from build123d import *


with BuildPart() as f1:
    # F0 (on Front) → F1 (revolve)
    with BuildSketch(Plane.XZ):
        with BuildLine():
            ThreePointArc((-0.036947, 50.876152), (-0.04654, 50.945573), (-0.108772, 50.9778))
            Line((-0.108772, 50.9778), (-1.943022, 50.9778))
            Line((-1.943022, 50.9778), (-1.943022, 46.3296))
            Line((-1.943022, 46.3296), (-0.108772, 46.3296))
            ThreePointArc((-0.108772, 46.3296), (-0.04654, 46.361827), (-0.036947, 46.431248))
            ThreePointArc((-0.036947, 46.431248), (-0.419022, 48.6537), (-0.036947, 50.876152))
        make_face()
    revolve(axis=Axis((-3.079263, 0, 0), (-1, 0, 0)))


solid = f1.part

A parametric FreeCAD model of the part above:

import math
import FreeCAD as App
import Part
import Sketcher
Q = App.Units.Quantity

doc = App.newDocument("Part")
body = doc.addObject("PartDesign::Body", "Body")

sketch1 = body.newObject("Sketcher::SketchObject", "Sketch")
sketch1.AttachmentSupport = (doc.getObject("XZ_Plane"), [""])
sketch1.MapMode = "FlatFace"
sketch1.addGeometry([
    Part.ArcOfCircle(Part.Circle(App.Vector(-0.11, 50.9, 0), App.Vector(0, 0, 1), 0.08), math.radians(-20), math.radians(90)),
    Part.LineSegment(App.Vector(-0.11, 50.98, 0), App.Vector(-1.94, 50.98, 0)),
    Part.LineSegment(App.Vector(-1.94, 50.98, 0), App.Vector(-1.94, 46.33, 0)),
    Part.LineSegment(App.Vector(-1.94, 46.33, 0), App.Vector(-0.11, 46.33, 0)),
    Part.ArcOfCircle(Part.Circle(App.Vector(-0.11, 46.41, 0), App.Vector(0, 0, 1), 0.08), math.radians(-90), math.radians(20)),
    Part.ArcOfCircle(Part.Circle(App.Vector(6.24, 48.65, 0), App.Vector(0, 0, 1), 6.65), math.radians(160), math.radians(200)),
], False)
sketch1.addConstraint([
    Sketcher.Constraint("Tangent", 0, 2, 1, 1),
    Sketcher.Constraint("Coincident", 1, 2, 2, 1),
    Sketcher.Constraint("Coincident", 2, 2, 3, 1),
    Sketcher.Constraint("Tangent", 3, 2, 4, 1),
    Sketcher.Constraint("Coincident", 4, 2, 5, 2),
    Sketcher.Constraint("Coincident", 5, 1, 0, 1),
    Sketcher.Constraint("Horizontal", 1),
    Sketcher.Constraint("Vertical", 2),
    Sketcher.Constraint("Horizontal", 3),
    Sketcher.Constraint("Equal", 0, 4),
    Sketcher.Constraint("Vertical", 0, 3, 4, 3),
    Sketcher.Constraint("Vertical", 4, 2, 5, 1),
    Sketcher.Constraint("Radius", 0, Q("0.003 in")),
    Sketcher.Constraint("DistanceY", 2, 2, 2, 1, Q("0.183 in")),
    Sketcher.Constraint("DistanceY", -1, 1, 0, 3, Q("2.004 in")),
    Sketcher.Constraint("Radius", 5, 6.654811),
    Sketcher.Constraint("DistanceX", 1, 2, 1, 1, 1.83425),
    Sketcher.Constraint("DistanceX", 0, 3, -1, 1, 0.108772),
    Sketcher.Constraint("DistanceY", -1, 1, 4, 2, 46.431248),
])
revolution = body.newObject("PartDesign::Revolution", "Revolution")
revolution.Profile = sketch1
revolution.ReferenceAxis = (sketch1, ["H_Axis"])
revolution.Angle = 360

doc.recompute()
